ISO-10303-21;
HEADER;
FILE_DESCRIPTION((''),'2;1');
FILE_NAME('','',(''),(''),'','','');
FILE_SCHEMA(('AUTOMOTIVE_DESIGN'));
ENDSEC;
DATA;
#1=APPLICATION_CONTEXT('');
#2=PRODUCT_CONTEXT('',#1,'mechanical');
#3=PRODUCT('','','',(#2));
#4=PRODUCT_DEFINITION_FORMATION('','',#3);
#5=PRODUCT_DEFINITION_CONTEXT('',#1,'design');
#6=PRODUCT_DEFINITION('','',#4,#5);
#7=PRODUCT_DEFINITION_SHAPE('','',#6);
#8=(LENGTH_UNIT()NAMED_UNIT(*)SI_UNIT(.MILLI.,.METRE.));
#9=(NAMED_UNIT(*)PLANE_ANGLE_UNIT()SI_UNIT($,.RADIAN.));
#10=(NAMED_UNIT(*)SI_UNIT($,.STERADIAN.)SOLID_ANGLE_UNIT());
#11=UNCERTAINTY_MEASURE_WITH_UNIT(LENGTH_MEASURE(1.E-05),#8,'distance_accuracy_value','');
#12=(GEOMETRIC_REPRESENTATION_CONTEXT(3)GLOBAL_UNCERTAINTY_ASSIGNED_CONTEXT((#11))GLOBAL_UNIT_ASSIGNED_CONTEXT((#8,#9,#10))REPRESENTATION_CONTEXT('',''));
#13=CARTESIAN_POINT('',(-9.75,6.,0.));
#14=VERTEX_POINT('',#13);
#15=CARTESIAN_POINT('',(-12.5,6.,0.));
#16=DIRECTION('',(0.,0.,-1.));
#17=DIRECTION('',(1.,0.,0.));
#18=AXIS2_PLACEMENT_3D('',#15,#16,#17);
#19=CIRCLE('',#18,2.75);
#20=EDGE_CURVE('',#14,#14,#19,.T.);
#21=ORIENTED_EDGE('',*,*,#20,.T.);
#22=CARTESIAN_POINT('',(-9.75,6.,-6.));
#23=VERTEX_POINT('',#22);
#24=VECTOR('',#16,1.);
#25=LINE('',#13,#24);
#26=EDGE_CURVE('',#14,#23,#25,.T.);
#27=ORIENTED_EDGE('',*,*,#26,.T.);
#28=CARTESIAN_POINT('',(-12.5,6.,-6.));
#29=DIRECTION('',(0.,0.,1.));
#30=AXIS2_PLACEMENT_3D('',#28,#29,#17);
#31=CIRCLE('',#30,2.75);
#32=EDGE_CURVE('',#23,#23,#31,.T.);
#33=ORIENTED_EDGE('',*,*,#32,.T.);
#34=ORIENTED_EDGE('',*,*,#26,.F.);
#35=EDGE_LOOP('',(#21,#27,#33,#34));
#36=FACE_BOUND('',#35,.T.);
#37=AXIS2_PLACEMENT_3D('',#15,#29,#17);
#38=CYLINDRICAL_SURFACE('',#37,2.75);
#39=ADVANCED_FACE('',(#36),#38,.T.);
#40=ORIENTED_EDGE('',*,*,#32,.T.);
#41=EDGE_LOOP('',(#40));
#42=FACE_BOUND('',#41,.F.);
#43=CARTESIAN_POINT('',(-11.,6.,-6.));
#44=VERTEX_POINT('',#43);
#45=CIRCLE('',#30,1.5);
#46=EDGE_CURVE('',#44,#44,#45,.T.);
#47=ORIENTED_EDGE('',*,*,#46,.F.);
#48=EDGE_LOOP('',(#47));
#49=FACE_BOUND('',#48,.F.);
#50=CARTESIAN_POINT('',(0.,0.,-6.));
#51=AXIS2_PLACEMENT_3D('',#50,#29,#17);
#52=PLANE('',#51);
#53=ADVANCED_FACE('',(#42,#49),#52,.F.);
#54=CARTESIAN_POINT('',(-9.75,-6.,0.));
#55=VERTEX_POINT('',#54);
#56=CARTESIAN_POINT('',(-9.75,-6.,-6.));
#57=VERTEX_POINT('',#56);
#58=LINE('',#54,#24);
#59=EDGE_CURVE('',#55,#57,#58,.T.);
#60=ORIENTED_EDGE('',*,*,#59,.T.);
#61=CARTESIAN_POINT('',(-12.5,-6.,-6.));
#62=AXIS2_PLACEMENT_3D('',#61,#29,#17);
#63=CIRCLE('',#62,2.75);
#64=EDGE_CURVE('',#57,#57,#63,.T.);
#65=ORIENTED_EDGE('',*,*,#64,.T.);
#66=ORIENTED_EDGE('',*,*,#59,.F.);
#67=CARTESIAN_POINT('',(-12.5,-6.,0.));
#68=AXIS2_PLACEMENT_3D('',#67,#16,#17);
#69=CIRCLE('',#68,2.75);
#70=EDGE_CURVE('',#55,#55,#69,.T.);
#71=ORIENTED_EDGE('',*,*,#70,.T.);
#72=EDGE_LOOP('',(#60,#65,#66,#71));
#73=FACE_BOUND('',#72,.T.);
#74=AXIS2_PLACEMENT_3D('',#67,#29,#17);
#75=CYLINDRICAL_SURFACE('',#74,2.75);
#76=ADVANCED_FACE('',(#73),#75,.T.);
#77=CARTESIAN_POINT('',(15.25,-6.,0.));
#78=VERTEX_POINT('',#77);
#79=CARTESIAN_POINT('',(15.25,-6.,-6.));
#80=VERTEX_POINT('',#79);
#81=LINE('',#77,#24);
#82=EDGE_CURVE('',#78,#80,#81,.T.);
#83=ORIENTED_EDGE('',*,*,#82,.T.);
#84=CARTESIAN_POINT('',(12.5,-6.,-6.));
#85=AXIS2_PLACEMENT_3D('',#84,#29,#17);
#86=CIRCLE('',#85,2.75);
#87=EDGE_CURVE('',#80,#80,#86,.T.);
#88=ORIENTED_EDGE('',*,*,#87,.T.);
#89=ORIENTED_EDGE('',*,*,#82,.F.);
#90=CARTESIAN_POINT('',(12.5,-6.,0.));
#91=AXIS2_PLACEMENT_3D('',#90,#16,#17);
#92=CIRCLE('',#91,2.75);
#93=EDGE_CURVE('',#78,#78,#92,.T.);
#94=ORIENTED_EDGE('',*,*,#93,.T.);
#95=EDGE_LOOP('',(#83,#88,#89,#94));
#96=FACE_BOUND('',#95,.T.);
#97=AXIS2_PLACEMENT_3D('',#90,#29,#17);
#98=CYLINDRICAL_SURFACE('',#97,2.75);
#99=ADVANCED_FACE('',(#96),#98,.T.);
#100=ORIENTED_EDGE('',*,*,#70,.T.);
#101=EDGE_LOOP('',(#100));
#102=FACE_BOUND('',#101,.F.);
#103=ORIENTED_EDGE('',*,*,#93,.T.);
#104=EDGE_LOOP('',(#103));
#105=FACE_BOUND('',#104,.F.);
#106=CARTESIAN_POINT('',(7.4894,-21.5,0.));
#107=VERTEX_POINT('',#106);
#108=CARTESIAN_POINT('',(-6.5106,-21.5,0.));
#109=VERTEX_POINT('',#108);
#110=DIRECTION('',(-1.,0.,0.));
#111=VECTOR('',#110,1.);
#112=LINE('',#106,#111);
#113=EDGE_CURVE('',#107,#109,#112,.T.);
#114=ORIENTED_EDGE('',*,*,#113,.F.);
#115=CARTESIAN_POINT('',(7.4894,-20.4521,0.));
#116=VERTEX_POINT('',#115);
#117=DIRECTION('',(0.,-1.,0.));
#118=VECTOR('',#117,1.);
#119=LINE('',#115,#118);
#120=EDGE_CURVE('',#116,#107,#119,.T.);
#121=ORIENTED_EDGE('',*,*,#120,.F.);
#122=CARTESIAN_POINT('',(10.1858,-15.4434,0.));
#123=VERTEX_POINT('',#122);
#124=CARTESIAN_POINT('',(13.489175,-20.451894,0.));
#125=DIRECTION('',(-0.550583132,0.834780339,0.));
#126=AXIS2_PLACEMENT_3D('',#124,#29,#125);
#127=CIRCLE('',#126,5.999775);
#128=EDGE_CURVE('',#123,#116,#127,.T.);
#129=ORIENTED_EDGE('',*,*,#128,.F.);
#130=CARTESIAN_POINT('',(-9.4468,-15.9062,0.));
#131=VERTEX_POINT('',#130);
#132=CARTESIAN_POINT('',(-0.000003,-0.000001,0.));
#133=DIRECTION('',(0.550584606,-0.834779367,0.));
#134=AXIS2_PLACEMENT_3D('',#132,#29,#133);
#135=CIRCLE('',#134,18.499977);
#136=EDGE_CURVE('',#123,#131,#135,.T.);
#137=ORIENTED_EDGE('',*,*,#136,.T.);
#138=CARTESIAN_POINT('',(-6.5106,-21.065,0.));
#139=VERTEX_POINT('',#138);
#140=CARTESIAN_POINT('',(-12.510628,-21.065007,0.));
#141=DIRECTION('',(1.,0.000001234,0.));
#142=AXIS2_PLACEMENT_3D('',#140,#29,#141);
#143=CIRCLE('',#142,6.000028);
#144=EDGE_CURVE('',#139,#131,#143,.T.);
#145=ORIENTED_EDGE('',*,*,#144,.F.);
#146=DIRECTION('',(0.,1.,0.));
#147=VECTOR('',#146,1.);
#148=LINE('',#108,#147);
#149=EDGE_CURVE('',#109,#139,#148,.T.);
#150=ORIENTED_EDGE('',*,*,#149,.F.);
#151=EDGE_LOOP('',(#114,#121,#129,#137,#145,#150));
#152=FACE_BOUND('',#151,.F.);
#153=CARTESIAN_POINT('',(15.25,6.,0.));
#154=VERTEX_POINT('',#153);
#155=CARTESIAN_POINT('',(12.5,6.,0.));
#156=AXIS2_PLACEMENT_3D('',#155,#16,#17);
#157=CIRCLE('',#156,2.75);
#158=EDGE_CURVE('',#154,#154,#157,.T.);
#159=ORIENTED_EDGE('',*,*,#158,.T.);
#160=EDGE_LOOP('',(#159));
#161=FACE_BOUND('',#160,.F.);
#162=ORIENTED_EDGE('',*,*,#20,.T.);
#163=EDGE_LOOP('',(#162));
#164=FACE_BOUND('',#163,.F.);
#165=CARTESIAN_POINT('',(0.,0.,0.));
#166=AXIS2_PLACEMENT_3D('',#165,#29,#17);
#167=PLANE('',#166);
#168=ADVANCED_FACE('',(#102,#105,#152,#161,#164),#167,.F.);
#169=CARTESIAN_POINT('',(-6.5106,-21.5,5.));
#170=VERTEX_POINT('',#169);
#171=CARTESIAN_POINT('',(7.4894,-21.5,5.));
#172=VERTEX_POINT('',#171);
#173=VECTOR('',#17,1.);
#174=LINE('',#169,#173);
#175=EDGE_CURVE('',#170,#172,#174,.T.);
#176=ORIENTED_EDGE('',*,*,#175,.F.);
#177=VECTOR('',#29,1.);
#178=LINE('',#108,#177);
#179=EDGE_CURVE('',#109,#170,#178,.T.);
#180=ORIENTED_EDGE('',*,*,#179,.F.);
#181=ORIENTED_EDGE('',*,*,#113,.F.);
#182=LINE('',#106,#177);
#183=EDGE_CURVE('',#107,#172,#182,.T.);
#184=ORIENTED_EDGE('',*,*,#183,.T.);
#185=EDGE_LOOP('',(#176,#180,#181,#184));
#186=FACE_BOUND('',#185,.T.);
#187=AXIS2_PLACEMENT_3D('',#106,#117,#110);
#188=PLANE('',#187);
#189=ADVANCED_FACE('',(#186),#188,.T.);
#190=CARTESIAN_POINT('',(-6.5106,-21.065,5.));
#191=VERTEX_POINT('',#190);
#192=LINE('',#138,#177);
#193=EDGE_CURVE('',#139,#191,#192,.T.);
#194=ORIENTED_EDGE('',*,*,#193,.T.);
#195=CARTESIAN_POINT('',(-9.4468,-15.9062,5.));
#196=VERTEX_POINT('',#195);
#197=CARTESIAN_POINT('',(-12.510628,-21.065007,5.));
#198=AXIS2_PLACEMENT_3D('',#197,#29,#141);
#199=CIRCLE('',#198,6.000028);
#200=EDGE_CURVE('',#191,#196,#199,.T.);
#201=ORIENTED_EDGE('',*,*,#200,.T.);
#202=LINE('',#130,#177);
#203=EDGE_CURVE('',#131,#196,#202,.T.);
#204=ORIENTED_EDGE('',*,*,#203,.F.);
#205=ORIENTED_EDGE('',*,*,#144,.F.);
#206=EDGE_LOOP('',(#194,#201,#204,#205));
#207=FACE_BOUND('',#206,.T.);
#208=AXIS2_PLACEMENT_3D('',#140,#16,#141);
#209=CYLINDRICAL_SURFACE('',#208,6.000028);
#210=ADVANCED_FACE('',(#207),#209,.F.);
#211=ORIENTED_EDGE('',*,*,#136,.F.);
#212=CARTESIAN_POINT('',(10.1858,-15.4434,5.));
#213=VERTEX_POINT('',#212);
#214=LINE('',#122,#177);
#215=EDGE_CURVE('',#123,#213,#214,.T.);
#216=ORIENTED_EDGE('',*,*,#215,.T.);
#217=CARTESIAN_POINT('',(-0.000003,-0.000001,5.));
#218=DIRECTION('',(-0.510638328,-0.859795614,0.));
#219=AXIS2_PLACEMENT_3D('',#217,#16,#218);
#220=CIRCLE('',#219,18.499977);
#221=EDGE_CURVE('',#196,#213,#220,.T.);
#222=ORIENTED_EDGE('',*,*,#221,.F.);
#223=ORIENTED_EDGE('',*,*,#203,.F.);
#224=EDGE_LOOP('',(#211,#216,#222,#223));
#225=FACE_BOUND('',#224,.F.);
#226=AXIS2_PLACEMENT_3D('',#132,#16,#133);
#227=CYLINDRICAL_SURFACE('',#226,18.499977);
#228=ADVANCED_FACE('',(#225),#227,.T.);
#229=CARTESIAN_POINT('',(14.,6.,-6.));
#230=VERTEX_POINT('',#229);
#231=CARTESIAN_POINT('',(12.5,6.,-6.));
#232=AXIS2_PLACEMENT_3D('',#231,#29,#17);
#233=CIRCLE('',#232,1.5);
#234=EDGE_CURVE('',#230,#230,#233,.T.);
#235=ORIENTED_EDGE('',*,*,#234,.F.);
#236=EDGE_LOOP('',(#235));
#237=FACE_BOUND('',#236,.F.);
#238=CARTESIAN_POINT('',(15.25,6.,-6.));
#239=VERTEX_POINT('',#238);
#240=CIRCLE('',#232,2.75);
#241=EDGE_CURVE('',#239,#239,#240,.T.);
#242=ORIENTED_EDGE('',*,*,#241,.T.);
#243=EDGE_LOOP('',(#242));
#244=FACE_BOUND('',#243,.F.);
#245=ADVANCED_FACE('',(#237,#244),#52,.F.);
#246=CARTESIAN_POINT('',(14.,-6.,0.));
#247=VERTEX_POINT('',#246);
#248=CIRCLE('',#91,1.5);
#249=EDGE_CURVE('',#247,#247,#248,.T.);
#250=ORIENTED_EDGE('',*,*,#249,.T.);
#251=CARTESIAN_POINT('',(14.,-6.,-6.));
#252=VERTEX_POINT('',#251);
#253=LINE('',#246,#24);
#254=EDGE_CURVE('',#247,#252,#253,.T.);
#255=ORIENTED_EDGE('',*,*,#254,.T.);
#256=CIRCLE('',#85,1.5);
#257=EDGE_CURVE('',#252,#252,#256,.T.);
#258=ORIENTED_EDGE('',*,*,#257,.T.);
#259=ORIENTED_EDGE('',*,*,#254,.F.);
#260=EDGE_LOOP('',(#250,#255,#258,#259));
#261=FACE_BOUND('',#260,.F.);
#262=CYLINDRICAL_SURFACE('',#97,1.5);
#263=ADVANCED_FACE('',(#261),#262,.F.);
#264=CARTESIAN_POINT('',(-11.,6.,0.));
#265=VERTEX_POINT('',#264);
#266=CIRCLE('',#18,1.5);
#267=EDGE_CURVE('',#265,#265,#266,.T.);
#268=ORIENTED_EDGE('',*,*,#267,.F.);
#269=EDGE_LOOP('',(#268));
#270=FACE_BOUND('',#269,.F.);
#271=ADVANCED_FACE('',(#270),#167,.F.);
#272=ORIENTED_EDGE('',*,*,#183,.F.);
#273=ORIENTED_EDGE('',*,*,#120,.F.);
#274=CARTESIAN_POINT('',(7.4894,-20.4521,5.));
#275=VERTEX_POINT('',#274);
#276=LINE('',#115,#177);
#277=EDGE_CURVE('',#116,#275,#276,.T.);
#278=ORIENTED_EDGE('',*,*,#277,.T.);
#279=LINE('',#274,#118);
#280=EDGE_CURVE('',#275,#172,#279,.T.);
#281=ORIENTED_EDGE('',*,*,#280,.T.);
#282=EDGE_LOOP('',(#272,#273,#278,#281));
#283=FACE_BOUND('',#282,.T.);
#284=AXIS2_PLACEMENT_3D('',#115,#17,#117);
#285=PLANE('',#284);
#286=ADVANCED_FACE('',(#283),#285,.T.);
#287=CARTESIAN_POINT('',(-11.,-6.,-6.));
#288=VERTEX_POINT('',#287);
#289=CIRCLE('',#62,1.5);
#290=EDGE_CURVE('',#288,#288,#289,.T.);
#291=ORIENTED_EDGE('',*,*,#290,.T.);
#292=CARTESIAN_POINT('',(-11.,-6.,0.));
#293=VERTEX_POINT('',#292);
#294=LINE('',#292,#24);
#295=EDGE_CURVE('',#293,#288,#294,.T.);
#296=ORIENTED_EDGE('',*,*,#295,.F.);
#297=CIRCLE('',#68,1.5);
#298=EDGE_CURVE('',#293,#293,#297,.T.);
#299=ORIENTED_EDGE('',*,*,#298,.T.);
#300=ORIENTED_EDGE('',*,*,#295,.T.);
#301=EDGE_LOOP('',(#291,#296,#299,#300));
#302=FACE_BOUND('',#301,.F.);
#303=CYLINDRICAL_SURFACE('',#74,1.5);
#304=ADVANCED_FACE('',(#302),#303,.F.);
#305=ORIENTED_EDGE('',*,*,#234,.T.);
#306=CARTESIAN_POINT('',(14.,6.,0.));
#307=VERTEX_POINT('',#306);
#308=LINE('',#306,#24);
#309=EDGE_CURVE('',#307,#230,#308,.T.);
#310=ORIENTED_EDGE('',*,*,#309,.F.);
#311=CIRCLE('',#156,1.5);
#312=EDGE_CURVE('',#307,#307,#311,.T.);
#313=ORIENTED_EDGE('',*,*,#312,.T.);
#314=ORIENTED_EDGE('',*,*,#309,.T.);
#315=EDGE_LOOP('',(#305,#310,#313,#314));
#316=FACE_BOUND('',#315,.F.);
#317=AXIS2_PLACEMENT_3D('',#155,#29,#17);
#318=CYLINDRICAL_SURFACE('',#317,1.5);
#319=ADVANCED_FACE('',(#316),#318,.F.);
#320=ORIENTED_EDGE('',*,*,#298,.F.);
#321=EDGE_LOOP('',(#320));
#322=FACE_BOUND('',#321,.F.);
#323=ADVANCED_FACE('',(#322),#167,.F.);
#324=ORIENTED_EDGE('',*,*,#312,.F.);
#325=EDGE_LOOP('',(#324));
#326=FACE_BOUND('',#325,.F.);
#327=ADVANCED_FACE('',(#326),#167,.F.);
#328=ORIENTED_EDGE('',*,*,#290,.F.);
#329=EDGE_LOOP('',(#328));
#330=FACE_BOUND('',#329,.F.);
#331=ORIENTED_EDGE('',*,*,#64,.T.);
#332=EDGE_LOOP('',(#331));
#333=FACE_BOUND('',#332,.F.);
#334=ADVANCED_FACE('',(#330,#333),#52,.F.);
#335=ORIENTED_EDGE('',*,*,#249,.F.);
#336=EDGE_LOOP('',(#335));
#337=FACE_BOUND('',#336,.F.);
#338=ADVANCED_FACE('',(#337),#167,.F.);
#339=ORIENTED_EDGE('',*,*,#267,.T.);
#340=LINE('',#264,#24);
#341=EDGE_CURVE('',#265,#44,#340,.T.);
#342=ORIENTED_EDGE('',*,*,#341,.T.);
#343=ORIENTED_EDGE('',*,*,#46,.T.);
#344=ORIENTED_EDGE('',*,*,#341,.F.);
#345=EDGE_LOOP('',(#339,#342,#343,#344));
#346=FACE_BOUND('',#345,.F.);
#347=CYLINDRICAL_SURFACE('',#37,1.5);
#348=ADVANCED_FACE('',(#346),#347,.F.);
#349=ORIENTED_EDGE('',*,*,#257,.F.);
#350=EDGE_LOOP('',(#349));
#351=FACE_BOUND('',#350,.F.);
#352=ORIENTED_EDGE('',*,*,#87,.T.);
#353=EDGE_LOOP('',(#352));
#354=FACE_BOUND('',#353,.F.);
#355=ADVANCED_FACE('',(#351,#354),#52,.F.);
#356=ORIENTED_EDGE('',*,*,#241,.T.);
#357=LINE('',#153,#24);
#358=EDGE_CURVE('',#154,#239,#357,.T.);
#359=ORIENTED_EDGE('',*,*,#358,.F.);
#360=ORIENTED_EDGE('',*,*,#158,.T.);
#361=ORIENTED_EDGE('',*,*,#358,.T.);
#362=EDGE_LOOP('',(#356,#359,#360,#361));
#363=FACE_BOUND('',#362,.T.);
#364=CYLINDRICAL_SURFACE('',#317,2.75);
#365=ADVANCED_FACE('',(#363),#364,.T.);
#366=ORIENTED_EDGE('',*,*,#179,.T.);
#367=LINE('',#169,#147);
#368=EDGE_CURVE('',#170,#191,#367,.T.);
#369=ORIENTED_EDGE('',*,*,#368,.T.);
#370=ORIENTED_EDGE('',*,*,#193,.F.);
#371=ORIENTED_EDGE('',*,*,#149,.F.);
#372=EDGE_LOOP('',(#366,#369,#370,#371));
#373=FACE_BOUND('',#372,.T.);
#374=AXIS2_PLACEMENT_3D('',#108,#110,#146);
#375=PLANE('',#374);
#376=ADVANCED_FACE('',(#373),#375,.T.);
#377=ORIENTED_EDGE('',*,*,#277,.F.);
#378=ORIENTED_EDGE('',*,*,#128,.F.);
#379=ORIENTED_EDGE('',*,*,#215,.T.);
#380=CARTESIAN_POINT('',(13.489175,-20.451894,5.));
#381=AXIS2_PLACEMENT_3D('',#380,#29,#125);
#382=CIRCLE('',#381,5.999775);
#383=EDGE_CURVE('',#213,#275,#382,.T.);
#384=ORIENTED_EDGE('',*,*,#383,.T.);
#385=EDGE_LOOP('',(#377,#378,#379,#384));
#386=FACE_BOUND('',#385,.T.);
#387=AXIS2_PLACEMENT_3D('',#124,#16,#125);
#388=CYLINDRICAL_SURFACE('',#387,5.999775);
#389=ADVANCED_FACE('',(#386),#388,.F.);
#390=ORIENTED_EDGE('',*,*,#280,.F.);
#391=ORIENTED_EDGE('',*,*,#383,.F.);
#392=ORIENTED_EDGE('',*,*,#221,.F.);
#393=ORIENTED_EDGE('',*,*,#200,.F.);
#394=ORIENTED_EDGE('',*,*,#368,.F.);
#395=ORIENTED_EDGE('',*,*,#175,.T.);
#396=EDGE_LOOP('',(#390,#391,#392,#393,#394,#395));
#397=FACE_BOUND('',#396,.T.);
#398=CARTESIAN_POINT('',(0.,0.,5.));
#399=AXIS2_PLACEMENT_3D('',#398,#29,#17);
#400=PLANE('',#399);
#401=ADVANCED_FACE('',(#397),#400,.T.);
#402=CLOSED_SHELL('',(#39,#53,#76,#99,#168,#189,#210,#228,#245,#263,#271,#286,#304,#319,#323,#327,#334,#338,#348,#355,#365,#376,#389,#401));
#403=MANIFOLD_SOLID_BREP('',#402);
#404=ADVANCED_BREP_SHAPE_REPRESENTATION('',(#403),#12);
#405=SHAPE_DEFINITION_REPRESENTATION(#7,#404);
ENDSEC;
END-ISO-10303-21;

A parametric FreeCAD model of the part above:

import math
import FreeCAD as App
import Part
import Sketcher

V = App.Vector
Q = App.Units.Quantity

doc = App.newDocument("Part")
body = doc.addObject("PartDesign::Body", "Body")

# Sketch on XY plane
sketch1 = body.newObject("Sketcher::SketchObject", "Sketch")
sketch1.AttachmentSupport = (doc.getObject("XY_Plane"), [""])
sketch1.MapMode = "FlatFace"
sketch1.addGeometry([
    Part.ArcOfCircle(Part.Circle(V(13.49, -20.45, 0), V(0, 0, 1), 6), math.radians(123), math.radians(180)),  # 0
    Part.ArcOfCircle(Part.Circle(V(0, 0, 0), V(0, 0, 1), 18.5), math.radians(-57), math.radians(239)),  # 1
    Part.ArcOfCircle(Part.Circle(V(-12.51, -21.07, 0), V(0, 0, 1), 6), math.radians(0), math.radians(59)),  # 2
    Part.LineSegment(V(-6.51, -21.07, 0), V(-6.51, -21.5, 0)),  # 3
    Part.LineSegment(V(-6.51, -21.5, 0), V(7.49, -21.5, 0)),  # 4
    Part.LineSegment(V(7.49, -21.5, 0), V(7.49, -20.45, 0)),  # 5
], False)
sketch1.addConstraint([
    Sketcher.Constraint("Tangent", 0, 1, 1, 1),
    Sketcher.Constraint("Tangent", 1, 2, 2, 2),
    Sketcher.Constraint("Tangent", 2, 1, 3, 1),
    Sketcher.Constraint("Coincident", 3, 2, 4, 1),
    Sketcher.Constraint("Coincident", 4, 2, 5, 1),
    Sketcher.Constraint("Tangent", 5, 2, 0, 2),
    Sketcher.Constraint("Vertical", 3),
    Sketcher.Constraint("Horizontal", 4),
    Sketcher.Constraint("Vertical", 5),
    Sketcher.Constraint("Coincident", 1, 3, -1, 1),
    Sketcher.Constraint("Equal", 0, 2),
    Sketcher.Constraint("Radius", 0, Q("6 mm")),
    Sketcher.Constraint("Radius", 1, Q("18.5 mm")),
    Sketcher.Constraint("DistanceX", 4, 1, 4, 2, Q("14 mm")),
    Sketcher.Constraint("DistanceY", 3, 2, -1, 1, Q("21.5 mm")),
    Sketcher.Constraint("DistanceY", 3, 2, 3, 1, Q("0.435 mm")),
])
pad1 = body.newObject("PartDesign::Pad", "Pad")
pad1.Profile = sketch1
pad1.Length = 5

# Sketch on XY plane
sketch2 = body.newObject("Sketcher::SketchObject", "Sketch001")
sketch2.AttachmentSupport = (doc.getObject("XY_Plane"), [""])
sketch2.MapMode = "FlatFace"
sketch2.addGeometry([
    Part.Circle(V(-12.5, 6, 0), V(0, 0, 1), 2.8),  # 0
    Part.Circle(V(-12.5, 6, 0), V(0, 0, 1), 1.5),  # 1
    Part.Circle(V(12.5, 6, 0), V(0, 0, 1), 2.8),  # 2
    Part.Circle(V(12.5, 6, 0), V(0, 0, 1), 1.5),  # 3
    Part.Circle(V(12.5, -6, 0), V(0, 0, 1), 2.8),  # 4
    Part.Circle(V(12.5, -6, 0), V(0, 0, 1), 1.5),  # 5
    Part.Circle(V(-12.5, -6, 0), V(0, 0, 1), 2.8),  # 6
    Part.Circle(V(-12.5, -6, 0), V(0, 0, 1), 1.5),  # 7
], False)
sketch2.addConstraint([
    Sketcher.Constraint("Coincident", 1, 3, 0, 3),
    Sketcher.Constraint("Coincident", 3, 3, 2, 3),
    Sketcher.Constraint("Coincident", 5, 3, 4, 3),
    Sketcher.Constraint("Coincident", 7, 3, 6, 3),
    Sketcher.Constraint("Equal", 0, 2),
    Sketcher.Constraint("Equal", 1, 3),
    Sketcher.Constraint("Equal", 2, 4),
    Sketcher.Constraint("Equal", 3, 5),
    Sketcher.Constraint("Equal", 4, 6),
    Sketcher.Constraint("Equal", 5, 7),
    Sketcher.Constraint("Symmetric", 0, 3, 4, 3, -1, 1),
    Sketcher.Constraint("Symmetric", 2, 3, 6, 3, -1, 1),
    Sketcher.Constraint("Symmetric", 0, 3, 2, 3, -2),
    Sketcher.Constraint("Diameter", 1, Q("3 mm")),
    Sketcher.Constraint("Diameter", 0, Q("5.5 mm")),
    Sketcher.Constraint("DistanceY", -1, 1, 0, 3, Q("6 mm")),
    Sketcher.Constraint("DistanceX", 0, 3, 2, 3, Q("25 mm")),
])
pad2 = body.newObject("PartDesign::Pad", "Pad001")
pad2.Profile = sketch2
pad2.Length = 6
pad2.Reversed = True

doc.recompute()
